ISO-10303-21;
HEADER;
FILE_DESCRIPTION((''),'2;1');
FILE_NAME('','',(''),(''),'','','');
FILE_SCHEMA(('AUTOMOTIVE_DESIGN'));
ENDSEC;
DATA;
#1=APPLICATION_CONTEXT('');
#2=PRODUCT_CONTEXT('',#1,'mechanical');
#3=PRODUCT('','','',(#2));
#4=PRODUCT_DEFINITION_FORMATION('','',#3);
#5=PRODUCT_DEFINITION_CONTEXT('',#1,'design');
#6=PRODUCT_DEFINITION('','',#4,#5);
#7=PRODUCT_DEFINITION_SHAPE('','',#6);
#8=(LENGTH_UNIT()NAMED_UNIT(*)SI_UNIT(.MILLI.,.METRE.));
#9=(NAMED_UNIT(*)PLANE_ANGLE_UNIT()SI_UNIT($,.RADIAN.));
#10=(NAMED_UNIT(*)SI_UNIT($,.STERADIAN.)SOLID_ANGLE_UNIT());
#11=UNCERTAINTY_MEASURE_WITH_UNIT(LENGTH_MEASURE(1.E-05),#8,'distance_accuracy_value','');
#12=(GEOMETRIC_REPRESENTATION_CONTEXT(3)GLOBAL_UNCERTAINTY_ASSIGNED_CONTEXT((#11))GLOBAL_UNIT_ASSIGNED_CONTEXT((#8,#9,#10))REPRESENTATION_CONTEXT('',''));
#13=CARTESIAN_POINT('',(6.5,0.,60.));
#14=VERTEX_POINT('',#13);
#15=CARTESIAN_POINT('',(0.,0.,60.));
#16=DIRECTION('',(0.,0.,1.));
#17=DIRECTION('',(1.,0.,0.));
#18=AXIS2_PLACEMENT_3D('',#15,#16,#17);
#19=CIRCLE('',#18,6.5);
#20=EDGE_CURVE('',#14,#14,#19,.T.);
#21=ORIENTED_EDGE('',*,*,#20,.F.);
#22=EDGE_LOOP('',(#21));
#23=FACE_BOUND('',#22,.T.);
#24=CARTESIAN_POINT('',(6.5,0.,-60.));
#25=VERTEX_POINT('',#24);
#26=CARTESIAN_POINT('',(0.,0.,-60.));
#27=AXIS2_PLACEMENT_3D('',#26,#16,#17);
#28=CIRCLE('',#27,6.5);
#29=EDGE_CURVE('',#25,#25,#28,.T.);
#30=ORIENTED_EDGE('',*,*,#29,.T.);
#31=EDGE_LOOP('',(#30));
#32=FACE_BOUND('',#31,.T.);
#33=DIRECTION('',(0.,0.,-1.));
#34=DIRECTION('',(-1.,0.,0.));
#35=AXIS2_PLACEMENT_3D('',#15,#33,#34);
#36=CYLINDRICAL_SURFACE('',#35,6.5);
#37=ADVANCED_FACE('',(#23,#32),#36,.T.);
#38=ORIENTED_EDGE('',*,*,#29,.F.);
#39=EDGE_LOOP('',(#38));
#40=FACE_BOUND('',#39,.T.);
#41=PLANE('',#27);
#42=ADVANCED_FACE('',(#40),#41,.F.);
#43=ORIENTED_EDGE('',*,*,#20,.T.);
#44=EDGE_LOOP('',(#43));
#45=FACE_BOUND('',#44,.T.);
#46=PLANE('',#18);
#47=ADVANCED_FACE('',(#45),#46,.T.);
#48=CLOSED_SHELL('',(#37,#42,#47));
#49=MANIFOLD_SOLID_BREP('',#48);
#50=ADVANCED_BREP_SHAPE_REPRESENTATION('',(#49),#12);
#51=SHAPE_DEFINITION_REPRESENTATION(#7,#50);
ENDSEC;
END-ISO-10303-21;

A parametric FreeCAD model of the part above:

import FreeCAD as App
import Part
import Sketcher

V = App.Vector
Q = App.Units.Quantity

doc = App.newDocument("Part")
body = doc.addObject("PartDesign::Body", "Body")

sketch1 = body.newObject("Sketcher::SketchObject", "Sketch")
sketch1.AttachmentSupport = (doc.getObject("XY_Plane"), [""])
sketch1.MapMode = "FlatFace"
sketch1.addGeometry(Part.Circle(V(0, 0, 0), V(0, 0, 1), 6), False)
sketch1.addConstraint([
    Sketcher.Constraint("Coincident", 0, 3, -1, 1),
    Sketcher.Constraint("Diameter", 0, Q("13 mm")),
])
pad1 = body.newObject("PartDesign::Pad", "Pad")
pad1.Profile = sketch1
pad1.Length = 120
pad1.Midplane = True

doc.recompute()
